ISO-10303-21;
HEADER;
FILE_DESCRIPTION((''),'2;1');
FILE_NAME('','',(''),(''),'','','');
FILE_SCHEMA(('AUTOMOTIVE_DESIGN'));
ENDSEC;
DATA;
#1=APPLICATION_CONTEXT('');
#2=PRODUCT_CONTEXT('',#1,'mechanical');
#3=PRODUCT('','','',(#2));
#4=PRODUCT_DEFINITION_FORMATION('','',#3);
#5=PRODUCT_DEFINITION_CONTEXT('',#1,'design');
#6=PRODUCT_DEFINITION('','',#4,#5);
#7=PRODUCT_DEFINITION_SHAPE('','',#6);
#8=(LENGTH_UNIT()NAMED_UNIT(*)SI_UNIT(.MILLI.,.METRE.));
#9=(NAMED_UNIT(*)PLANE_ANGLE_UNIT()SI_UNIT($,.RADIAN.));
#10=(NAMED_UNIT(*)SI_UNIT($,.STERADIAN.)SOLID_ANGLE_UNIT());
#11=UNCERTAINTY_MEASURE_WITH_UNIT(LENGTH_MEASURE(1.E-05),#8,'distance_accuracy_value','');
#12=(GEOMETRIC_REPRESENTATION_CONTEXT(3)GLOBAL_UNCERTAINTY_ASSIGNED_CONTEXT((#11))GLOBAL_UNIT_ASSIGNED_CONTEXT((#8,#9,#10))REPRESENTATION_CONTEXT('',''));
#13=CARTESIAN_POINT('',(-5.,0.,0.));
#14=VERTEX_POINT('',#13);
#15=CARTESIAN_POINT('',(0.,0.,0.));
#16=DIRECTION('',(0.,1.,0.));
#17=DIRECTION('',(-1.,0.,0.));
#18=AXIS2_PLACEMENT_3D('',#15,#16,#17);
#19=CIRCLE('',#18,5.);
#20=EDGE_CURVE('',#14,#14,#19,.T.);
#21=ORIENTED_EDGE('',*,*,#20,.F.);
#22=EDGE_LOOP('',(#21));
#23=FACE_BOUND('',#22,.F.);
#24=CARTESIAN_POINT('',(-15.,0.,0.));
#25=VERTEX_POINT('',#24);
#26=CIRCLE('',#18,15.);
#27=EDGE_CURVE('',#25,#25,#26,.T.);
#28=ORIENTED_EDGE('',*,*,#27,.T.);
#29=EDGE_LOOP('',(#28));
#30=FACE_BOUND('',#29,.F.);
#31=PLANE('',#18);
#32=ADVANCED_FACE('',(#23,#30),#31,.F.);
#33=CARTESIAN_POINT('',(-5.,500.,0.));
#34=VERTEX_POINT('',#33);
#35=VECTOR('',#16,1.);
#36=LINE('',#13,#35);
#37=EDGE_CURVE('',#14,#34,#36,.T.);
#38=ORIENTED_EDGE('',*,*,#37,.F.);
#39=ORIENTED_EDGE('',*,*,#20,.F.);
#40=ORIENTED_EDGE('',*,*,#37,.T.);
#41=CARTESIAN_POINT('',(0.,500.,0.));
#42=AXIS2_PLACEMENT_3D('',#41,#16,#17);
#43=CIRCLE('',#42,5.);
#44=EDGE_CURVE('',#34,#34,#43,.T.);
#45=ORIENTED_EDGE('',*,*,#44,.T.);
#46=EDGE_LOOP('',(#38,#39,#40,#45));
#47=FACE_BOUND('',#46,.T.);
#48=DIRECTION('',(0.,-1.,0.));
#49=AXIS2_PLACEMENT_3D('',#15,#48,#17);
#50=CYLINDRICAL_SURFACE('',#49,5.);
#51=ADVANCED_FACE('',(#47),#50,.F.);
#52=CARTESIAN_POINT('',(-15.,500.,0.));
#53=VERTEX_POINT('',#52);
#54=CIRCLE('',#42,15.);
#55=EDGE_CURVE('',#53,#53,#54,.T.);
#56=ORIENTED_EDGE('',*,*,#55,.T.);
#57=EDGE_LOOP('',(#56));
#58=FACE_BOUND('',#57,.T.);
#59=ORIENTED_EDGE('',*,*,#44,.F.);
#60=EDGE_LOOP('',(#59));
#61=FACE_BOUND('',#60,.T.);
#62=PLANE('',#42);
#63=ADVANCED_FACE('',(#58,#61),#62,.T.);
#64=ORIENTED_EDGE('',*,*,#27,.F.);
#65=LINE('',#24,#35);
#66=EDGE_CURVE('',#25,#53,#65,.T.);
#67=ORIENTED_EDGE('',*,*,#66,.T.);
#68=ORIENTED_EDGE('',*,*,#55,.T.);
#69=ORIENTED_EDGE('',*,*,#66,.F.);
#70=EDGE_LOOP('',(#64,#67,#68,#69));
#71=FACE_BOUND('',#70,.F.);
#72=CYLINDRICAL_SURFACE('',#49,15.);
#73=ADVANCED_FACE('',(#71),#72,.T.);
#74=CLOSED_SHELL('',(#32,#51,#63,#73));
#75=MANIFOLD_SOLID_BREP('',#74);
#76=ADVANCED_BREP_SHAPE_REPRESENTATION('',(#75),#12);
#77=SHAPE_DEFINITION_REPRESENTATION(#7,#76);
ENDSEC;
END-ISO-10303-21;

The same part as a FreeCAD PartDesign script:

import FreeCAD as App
import Part
import Sketcher
Q = App.Units.Quantity

doc = App.newDocument("Part")
body = doc.addObject("PartDesign::Body", "Body")

# Sketch on XZ plane
sketch1 = body.newObject("Sketcher::SketchObject", "Sketch")
sketch1.AttachmentSupport = (doc.getObject("XZ_Plane"), [""])
sketch1.MapMode = "FlatFace"
sketch1.addGeometry([
    Part.Circle(App.Vector(0, 0, 0), App.Vector(0, 0, 1), 15),
    Part.Circle(App.Vector(0, 0, 0), App.Vector(0, 0, 1), 5),
], False)
sketch1.addConstraint([
    Sketcher.Constraint("Coincident", 0, 3, -1, 1),
    Sketcher.Constraint("Coincident", 1, 3, -1, 1),
    Sketcher.Constraint("Diameter", 0, Q("30 mm")),
    Sketcher.Constraint("Diameter", 1, Q("10 mm")),
])
pad1 = body.newObject("PartDesign::Pad", "Pad")
pad1.Profile = sketch1
pad1.Length = 500
pad1.Reversed = True

doc.recompute()
